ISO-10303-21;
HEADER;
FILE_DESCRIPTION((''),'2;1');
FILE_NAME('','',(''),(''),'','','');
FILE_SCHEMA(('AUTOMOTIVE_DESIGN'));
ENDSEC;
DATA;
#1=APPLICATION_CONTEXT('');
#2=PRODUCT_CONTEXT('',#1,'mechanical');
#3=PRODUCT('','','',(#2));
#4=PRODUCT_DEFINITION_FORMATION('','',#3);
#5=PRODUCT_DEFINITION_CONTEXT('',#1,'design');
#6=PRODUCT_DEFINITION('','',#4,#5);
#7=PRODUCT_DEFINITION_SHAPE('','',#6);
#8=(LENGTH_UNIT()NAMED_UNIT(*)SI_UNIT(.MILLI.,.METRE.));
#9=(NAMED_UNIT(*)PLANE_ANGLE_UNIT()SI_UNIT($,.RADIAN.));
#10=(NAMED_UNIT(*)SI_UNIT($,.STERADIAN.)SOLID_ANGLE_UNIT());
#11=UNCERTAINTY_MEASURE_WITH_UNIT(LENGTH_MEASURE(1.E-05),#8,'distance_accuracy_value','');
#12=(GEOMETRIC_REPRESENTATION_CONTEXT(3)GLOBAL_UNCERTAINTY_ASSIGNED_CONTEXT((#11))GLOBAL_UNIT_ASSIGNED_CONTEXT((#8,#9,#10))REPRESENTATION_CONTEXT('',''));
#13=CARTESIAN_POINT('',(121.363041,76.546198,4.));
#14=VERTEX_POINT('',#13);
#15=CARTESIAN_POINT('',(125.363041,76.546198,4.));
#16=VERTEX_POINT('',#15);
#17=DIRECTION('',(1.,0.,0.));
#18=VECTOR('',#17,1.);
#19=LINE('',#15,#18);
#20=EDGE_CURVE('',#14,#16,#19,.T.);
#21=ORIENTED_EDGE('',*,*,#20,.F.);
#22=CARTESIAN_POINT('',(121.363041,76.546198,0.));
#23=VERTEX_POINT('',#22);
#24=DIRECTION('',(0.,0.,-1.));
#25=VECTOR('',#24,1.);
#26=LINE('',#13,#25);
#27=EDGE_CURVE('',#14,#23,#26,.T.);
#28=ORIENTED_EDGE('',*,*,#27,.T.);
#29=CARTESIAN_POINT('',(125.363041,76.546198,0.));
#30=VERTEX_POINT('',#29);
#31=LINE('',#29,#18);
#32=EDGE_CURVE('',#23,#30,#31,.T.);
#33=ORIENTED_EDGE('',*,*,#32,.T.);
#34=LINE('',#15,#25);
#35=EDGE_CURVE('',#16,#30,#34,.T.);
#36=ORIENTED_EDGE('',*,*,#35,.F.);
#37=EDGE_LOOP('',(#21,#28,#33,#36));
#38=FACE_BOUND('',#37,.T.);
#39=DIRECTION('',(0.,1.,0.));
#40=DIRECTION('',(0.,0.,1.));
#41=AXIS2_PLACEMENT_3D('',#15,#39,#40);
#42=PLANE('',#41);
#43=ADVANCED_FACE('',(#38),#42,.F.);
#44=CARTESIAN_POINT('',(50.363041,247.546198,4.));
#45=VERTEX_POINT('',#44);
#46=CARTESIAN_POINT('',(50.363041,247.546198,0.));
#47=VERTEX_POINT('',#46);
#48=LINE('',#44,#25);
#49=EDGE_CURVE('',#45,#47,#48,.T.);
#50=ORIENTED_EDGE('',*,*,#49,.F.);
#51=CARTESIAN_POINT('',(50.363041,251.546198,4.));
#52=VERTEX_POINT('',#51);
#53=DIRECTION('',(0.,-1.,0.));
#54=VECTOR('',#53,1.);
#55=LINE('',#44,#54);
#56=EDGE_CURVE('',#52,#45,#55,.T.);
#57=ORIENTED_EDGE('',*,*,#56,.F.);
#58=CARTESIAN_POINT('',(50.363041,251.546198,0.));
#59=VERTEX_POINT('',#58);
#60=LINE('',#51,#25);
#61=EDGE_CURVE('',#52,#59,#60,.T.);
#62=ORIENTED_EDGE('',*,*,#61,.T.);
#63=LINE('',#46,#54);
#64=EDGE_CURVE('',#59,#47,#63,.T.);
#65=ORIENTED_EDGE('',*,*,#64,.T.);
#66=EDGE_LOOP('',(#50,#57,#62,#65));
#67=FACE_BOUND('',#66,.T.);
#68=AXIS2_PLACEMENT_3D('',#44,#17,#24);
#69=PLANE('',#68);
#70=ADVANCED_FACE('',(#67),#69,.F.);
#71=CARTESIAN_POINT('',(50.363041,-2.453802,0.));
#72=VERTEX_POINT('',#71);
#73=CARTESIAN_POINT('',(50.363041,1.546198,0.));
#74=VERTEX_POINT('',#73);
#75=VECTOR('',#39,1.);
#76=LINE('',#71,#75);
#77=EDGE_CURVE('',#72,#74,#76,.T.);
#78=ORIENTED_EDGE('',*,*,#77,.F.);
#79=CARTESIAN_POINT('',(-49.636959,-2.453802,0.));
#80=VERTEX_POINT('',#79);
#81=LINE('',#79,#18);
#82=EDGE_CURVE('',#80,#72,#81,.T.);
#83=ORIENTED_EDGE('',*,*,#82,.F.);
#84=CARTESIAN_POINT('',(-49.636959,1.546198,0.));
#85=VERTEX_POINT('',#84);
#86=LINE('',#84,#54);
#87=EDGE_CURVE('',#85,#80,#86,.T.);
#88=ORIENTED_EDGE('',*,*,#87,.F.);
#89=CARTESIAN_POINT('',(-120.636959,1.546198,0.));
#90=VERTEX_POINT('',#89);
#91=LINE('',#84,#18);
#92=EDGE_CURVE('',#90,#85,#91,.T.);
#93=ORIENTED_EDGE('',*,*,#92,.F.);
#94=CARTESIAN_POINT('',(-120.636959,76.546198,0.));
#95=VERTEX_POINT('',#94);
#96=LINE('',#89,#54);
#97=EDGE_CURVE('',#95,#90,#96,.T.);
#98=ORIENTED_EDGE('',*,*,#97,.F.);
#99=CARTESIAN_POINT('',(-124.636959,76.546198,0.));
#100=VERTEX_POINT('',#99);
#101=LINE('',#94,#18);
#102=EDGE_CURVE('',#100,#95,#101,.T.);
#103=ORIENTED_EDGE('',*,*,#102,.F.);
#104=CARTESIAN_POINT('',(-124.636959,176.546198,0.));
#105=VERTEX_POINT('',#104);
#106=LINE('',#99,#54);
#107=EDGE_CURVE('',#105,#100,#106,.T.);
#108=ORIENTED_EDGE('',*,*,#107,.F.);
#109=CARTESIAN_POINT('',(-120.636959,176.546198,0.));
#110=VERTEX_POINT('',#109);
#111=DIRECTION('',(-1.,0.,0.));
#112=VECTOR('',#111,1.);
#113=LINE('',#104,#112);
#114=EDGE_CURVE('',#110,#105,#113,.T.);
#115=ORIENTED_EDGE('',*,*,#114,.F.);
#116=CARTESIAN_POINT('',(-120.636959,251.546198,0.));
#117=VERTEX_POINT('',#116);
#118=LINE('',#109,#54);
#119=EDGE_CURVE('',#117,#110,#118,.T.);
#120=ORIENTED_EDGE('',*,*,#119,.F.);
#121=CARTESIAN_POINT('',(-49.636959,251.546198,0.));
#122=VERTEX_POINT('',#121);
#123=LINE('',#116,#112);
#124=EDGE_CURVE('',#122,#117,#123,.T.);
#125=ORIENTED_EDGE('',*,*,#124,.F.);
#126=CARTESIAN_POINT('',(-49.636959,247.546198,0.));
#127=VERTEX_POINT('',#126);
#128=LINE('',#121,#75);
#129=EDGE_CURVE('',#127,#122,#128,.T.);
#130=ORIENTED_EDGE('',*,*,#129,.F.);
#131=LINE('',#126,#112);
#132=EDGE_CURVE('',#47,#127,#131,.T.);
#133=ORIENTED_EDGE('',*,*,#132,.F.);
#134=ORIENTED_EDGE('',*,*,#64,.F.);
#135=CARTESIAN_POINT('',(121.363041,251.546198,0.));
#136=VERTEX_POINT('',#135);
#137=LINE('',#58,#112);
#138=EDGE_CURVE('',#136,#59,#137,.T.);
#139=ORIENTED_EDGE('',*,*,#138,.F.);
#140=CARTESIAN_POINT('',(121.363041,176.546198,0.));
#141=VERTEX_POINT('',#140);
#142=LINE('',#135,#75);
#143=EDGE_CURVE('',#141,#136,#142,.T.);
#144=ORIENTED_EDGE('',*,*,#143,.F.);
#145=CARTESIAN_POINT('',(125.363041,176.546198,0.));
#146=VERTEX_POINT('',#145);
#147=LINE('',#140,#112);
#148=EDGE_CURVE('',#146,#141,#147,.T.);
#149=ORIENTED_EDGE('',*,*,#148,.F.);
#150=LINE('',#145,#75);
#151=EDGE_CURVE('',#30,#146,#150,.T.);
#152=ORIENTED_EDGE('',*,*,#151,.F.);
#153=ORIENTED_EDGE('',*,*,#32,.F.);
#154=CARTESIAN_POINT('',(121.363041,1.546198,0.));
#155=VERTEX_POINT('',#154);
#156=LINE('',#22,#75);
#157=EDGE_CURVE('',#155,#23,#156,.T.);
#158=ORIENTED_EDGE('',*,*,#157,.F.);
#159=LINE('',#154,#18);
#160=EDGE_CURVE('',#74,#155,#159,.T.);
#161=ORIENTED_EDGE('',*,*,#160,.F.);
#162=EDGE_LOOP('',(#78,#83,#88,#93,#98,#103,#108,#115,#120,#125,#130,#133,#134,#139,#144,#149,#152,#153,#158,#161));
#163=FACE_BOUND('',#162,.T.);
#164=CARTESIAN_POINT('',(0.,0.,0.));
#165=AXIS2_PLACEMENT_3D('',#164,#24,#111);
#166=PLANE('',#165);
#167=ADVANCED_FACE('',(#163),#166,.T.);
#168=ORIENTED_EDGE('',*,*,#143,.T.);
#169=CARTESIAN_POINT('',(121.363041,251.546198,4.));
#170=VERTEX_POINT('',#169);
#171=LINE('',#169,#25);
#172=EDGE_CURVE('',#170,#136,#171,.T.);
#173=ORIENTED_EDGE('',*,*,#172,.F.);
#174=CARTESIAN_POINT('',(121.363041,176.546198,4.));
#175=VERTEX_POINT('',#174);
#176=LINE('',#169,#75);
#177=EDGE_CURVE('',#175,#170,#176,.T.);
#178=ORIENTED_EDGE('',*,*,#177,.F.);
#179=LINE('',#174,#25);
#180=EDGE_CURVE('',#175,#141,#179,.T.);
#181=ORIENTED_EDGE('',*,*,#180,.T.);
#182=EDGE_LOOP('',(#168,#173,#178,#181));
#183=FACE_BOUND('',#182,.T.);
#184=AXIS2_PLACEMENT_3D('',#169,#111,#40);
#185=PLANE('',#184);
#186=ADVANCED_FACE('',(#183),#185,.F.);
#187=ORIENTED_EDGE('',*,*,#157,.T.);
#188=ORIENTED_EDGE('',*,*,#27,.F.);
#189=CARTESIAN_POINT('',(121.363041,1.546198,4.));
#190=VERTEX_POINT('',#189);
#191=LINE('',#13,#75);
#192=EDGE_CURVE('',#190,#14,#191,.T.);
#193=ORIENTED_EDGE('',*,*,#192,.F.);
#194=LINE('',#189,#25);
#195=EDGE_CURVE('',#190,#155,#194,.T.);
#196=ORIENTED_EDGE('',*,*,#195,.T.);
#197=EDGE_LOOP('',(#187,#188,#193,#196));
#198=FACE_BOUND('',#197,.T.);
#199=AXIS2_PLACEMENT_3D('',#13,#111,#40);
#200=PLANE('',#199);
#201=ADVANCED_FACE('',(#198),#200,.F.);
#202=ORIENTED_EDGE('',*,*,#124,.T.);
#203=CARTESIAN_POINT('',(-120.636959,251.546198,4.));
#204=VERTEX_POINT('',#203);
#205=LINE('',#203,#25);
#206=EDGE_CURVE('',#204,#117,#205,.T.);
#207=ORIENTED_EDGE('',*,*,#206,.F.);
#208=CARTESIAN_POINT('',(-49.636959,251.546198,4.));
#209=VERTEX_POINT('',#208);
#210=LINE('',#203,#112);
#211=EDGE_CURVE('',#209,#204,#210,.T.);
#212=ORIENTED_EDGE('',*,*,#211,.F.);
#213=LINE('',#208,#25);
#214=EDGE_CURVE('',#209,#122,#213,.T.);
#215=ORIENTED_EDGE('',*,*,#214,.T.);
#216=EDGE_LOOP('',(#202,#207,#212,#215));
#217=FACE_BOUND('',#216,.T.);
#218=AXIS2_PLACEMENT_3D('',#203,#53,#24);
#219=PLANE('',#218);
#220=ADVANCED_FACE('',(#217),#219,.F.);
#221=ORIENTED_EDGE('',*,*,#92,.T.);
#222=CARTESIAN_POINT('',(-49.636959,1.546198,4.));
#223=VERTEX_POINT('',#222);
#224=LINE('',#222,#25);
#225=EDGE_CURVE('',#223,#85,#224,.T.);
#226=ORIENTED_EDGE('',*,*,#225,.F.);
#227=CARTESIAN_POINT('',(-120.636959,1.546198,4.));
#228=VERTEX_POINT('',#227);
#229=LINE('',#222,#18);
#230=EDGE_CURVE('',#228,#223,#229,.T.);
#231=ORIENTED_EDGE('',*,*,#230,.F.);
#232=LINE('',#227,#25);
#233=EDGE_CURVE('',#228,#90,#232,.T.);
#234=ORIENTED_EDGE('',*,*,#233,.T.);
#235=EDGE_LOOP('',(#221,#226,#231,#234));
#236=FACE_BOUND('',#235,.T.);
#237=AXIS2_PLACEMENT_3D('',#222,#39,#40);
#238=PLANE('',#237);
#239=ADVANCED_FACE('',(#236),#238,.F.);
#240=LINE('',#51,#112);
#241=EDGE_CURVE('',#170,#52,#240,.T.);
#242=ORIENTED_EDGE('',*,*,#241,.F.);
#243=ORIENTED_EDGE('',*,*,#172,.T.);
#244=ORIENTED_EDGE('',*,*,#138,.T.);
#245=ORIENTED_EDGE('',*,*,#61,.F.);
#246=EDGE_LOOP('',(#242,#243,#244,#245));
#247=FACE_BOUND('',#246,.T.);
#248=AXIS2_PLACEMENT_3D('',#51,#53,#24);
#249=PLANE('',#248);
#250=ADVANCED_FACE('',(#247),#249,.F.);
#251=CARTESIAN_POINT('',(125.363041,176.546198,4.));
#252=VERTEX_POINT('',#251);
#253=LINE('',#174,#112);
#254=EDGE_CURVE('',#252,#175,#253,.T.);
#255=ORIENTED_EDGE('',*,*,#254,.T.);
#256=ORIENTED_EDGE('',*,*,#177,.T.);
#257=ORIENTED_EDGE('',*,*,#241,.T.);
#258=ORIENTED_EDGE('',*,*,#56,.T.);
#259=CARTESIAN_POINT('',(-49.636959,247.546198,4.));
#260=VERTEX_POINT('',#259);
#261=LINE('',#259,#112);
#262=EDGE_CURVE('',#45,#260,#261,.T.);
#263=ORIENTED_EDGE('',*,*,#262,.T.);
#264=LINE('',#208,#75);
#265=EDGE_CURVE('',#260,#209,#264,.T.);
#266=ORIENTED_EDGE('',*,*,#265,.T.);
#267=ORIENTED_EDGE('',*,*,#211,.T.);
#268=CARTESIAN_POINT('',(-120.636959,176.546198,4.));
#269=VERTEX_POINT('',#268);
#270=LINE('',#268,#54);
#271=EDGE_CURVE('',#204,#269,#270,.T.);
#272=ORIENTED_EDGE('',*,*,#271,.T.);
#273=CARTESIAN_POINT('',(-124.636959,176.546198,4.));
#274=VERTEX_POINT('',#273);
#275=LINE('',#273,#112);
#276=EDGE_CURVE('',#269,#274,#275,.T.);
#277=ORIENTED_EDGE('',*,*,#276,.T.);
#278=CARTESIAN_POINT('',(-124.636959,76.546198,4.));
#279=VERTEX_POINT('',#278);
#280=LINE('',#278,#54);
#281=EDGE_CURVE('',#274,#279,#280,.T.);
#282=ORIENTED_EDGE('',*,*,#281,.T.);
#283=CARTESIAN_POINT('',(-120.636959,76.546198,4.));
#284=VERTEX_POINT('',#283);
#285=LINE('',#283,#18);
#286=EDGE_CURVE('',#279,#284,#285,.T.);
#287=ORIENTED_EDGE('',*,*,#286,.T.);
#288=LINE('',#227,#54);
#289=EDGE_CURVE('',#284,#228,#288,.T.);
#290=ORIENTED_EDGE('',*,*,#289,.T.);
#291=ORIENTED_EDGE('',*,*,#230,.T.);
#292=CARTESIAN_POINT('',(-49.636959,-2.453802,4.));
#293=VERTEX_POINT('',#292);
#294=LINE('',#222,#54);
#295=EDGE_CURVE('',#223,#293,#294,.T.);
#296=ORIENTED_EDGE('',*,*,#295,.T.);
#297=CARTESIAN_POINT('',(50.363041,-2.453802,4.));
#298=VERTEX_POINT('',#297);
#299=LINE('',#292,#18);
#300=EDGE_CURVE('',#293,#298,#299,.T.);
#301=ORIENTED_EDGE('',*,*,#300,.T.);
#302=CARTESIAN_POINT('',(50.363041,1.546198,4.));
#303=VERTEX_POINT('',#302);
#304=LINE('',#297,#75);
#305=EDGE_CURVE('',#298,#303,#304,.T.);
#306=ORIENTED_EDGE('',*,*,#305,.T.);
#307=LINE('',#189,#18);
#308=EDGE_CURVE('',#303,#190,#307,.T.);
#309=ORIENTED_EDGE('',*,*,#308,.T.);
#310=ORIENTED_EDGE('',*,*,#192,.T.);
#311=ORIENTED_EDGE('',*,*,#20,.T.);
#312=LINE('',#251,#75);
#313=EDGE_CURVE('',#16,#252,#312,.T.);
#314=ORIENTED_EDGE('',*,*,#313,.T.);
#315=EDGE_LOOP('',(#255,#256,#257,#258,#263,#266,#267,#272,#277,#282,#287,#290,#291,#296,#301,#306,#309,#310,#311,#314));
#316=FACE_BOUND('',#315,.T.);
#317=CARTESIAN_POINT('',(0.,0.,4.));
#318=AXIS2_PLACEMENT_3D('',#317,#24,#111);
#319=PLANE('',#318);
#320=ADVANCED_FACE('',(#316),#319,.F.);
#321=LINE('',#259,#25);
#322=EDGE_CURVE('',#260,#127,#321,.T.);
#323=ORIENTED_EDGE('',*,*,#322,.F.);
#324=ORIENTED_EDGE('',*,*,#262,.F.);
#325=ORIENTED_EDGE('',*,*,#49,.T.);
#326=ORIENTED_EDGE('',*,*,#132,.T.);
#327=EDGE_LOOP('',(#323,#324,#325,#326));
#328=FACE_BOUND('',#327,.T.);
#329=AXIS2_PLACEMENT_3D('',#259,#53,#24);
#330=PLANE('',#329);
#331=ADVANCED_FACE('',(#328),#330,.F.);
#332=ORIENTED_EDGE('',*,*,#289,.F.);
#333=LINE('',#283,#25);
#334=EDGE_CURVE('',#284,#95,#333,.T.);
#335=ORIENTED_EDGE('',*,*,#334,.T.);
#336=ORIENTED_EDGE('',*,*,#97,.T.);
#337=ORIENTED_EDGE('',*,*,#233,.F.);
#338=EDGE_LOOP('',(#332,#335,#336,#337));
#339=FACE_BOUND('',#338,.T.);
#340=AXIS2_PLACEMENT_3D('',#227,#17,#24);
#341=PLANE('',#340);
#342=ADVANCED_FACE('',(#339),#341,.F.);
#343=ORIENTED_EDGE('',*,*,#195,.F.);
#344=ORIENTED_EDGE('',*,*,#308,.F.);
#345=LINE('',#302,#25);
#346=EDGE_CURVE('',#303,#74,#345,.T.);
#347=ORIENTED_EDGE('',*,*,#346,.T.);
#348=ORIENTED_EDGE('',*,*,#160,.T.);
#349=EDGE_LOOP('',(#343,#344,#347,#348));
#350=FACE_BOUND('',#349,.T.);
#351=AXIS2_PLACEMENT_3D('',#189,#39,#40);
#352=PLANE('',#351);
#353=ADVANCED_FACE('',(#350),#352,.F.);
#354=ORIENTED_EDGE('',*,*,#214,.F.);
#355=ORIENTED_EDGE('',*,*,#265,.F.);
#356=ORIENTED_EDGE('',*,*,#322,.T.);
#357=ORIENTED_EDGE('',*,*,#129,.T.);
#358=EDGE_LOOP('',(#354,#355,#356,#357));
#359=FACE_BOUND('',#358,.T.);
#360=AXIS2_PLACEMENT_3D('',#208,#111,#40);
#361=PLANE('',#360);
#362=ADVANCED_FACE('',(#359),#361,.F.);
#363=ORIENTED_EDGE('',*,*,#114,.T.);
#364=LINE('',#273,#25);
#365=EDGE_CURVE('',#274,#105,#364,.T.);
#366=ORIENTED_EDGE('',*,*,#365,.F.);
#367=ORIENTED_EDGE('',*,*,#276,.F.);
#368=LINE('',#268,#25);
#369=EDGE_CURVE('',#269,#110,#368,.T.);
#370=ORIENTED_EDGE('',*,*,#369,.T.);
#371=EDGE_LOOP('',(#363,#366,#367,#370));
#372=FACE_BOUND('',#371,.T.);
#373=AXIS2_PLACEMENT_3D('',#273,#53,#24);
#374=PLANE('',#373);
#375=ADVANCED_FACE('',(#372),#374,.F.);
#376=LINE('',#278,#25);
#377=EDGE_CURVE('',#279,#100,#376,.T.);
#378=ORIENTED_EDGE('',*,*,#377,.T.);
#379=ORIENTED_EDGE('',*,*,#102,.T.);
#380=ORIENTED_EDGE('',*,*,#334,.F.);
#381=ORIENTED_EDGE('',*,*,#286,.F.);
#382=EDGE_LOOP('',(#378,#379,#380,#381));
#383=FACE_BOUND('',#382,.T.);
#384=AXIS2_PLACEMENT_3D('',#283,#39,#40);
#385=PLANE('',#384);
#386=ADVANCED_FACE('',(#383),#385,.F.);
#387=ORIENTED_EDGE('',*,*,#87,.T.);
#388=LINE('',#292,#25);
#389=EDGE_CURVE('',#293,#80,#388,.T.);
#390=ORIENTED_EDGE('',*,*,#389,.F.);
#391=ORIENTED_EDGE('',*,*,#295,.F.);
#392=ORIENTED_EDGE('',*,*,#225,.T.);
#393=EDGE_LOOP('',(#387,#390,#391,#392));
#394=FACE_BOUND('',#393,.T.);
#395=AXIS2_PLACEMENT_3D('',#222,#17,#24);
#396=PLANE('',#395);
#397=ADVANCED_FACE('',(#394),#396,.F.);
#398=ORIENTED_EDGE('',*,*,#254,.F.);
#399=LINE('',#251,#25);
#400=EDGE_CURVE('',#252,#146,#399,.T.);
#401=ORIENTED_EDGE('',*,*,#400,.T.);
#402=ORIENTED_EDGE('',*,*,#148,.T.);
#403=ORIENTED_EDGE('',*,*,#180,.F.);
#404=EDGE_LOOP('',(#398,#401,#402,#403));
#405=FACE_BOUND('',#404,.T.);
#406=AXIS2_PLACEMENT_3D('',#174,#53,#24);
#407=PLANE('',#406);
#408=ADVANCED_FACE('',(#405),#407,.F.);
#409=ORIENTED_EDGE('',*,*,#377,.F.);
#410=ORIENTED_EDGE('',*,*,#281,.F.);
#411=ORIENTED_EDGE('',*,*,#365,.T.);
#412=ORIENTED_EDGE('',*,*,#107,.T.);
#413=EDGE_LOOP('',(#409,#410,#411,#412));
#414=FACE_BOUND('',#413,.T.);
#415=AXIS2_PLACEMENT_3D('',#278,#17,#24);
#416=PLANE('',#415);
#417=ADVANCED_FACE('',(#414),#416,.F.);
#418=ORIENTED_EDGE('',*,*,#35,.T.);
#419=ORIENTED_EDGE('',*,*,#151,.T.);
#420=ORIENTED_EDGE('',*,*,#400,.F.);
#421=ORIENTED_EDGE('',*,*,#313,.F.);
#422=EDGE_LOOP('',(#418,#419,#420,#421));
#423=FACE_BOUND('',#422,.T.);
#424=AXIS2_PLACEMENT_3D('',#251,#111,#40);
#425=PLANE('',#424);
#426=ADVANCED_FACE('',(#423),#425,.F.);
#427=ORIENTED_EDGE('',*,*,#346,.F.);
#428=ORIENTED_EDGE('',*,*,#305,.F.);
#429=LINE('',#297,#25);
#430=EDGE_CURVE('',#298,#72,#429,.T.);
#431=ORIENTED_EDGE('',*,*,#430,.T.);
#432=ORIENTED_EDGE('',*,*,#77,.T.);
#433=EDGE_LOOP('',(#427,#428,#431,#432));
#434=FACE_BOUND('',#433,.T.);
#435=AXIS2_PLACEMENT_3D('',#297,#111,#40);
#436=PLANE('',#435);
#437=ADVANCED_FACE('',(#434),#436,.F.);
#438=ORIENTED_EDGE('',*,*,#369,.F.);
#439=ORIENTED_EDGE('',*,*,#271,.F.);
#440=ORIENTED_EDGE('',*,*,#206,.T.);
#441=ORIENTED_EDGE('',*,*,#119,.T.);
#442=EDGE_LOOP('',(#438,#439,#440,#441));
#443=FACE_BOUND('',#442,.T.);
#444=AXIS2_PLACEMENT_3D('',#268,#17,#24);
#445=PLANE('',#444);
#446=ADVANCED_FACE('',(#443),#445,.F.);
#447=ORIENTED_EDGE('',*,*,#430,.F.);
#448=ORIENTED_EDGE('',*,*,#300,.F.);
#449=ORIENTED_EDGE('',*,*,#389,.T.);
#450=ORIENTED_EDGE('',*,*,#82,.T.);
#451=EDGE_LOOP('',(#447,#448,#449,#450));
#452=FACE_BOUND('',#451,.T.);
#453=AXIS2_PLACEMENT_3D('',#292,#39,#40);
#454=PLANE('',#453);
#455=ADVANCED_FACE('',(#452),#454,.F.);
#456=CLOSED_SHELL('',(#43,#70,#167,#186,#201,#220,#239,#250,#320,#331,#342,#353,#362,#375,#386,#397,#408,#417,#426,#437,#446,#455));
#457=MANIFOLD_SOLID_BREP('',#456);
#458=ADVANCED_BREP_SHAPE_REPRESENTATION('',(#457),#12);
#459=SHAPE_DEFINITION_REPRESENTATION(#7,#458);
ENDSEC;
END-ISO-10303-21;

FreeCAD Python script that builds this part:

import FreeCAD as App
import Part
import Sketcher
Q = App.Units.Quantity

doc = App.newDocument("Part")
body = doc.addObject("PartDesign::Body", "Body")

sketch1 = body.newObject("Sketcher::SketchObject", "Sketch")
sketch1.AttachmentSupport = (doc.getObject("XY_Plane"), [""])
sketch1.MapMode = "FlatFace"
sketch1.addGeometry([
    Part.LineSegment(App.Vector(-49.6, 1.5, 0), App.Vector(-49.6, -2.5, 0)),
    Part.LineSegment(App.Vector(-49.6, -2.5, 0), App.Vector(50.4, -2.5, 0)),
    Part.LineSegment(App.Vector(50.4, -2.5, 0), App.Vector(50.4, 1.5, 0)),
    Part.LineSegment(App.Vector(50.4, 1.5, 0), App.Vector(121.4, 1.5, 0)),
    Part.LineSegment(App.Vector(121.4, 1.5, 0), App.Vector(121.4, 76.5, 0)),
    Part.LineSegment(App.Vector(121.4, 76.5, 0), App.Vector(125.4, 76.5, 0)),
    Part.LineSegment(App.Vector(125.4, 76.5, 0), App.Vector(125.4, 176.5, 0)),
    Part.LineSegment(App.Vector(125.4, 176.5, 0), App.Vector(121.4, 176.5, 0)),
    Part.LineSegment(App.Vector(121.4, 176.5, 0), App.Vector(121.4, 251.5, 0)),
    Part.LineSegment(App.Vector(121.4, 251.5, 0), App.Vector(50.4, 251.5, 0)),
    Part.LineSegment(App.Vector(50.4, 251.5, 0), App.Vector(50.4, 247.5, 0)),
    Part.LineSegment(App.Vector(50.4, 247.5, 0), App.Vector(-49.6, 247.5, 0)),
    Part.LineSegment(App.Vector(-49.6, 247.5, 0), App.Vector(-49.6, 251.5, 0)),
    Part.LineSegment(App.Vector(-49.6, 251.5, 0), App.Vector(-120.6, 251.5, 0)),
    Part.LineSegment(App.Vector(-120.6, 251.5, 0), App.Vector(-120.6, 176.5, 0)),
    Part.LineSegment(App.Vector(-120.6, 176.5, 0), App.Vector(-124.6, 176.5, 0)),
    Part.LineSegment(App.Vector(-124.6, 176.5, 0), App.Vector(-124.6, 76.5, 0)),
    Part.LineSegment(App.Vector(-124.6, 76.5, 0), App.Vector(-120.6, 76.5, 0)),
    Part.LineSegment(App.Vector(-120.6, 76.5, 0), App.Vector(-120.6, 1.5, 0)),
    Part.LineSegment(App.Vector(-120.6, 1.5, 0), App.Vector(-49.6, 1.5, 0)),
], False)
sketch1.addConstraint([
    Sketcher.Constraint("Coincident", 0, 2, 1, 1),
    Sketcher.Constraint("Coincident", 1, 2, 2, 1),
    Sketcher.Constraint("Coincident", 2, 2, 3, 1),
    Sketcher.Constraint("Coincident", 3, 2, 4, 1),
    Sketcher.Constraint("Coincident", 4, 2, 5, 1),
    Sketcher.Constraint("Coincident", 5, 2, 6, 1),
    Sketcher.Constraint("Coincident", 6, 2, 7, 1),
    Sketcher.Constraint("Coincident", 7, 2, 8, 1),
    Sketcher.Constraint("Coincident", 8, 2, 9, 1),
    Sketcher.Constraint("Coincident", 9, 2, 10, 1),
    Sketcher.Constraint("Coincident", 10, 2, 11, 1),
    Sketcher.Constraint("Coincident", 11, 2, 12, 1),
    Sketcher.Constraint("Coincident", 12, 2, 13, 1),
    Sketcher.Constraint("Coincident", 13, 2, 14, 1),
    Sketcher.Constraint("Coincident", 14, 2, 15, 1),
    Sketcher.Constraint("Coincident", 15, 2, 16, 1),
    Sketcher.Constraint("Coincident", 16, 2, 17, 1),
    Sketcher.Constraint("Coincident", 17, 2, 18, 1),
    Sketcher.Constraint("Coincident", 18, 2, 19, 1),
    Sketcher.Constraint("Coincident", 19, 2, 0, 1),
    Sketcher.Constraint("Vertical", 0),
    Sketcher.Constraint("Horizontal", 1),
    Sketcher.Constraint("Vertical", 2),
    Sketcher.Constraint("Horizontal", 3),
    Sketcher.Constraint("Vertical", 4),
    Sketcher.Constraint("Horizontal", 5),
    Sketcher.Constraint("Vertical", 6),
    Sketcher.Constraint("Horizontal", 7),
    Sketcher.Constraint("Vertical", 8),
    Sketcher.Constraint("Horizontal", 9),
    Sketcher.Constraint("Vertical", 10),
    Sketcher.Constraint("Horizontal", 11),
    Sketcher.Constraint("Vertical", 12),
    Sketcher.Constraint("Horizontal", 13),
    Sketcher.Constraint("Vertical", 14),
    Sketcher.Constraint("Horizontal", 15),
    Sketcher.Constraint("Vertical", 16),
    Sketcher.Constraint("Horizontal", 17),
    Sketcher.Constraint("Vertical", 18),
    Sketcher.Constraint("Horizontal", 19),
    Sketcher.Constraint("Horizontal", 9, 2, 12, 2),
    Sketcher.Constraint("Horizontal", 7, 2, 14, 2),
    Sketcher.Constraint("Horizontal", 5, 2, 16, 2),
    Sketcher.Constraint("Horizontal", 3, 2, 18, 2),
    Sketcher.Constraint("Vertical", 4, 2, 7, 2),
    Sketcher.Constraint("Vertical", 2, 2, 9, 2),
    Sketcher.Constraint("Vertical", 0, 2, 11, 2),
    Sketcher.Constraint("Vertical", 14, 2, 17, 2),
    Sketcher.Constraint("Equal", 9, 13),
    Sketcher.Constraint("Equal", 7, 15),
    Sketcher.Constraint("Equal", 17, 0),
    Sketcher.Constraint("Equal", 11, 6),
    Sketcher.Constraint("Equal", 4, 8),
    Sketcher.Constraint("Equal", 2, 10),
    Sketcher.Constraint("DistanceX", 1, 1, 1, 2, Q("100 mm")),
    Sketcher.Constraint("DistanceX", 3, 1, 3, 2, Q("71 mm")),
    Sketcher.Constraint("DistanceX", 5, 1, 5, 2, Q("4 mm")),
    Sketcher.Constraint("DistanceY", 4, 1, 4, 2, Q("75 mm")),
    Sketcher.Constraint("DistanceY", 0, 2, -1, 1, Q("2.453802 mm")),
    Sketcher.Constraint("DistanceX", 0, 2, -1, 1, Q("49.636959 mm")),
])
pad1 = body.newObject("PartDesign::Pad", "Pad")
pad1.Profile = sketch1
pad1.Length = 4

doc.recompute()
